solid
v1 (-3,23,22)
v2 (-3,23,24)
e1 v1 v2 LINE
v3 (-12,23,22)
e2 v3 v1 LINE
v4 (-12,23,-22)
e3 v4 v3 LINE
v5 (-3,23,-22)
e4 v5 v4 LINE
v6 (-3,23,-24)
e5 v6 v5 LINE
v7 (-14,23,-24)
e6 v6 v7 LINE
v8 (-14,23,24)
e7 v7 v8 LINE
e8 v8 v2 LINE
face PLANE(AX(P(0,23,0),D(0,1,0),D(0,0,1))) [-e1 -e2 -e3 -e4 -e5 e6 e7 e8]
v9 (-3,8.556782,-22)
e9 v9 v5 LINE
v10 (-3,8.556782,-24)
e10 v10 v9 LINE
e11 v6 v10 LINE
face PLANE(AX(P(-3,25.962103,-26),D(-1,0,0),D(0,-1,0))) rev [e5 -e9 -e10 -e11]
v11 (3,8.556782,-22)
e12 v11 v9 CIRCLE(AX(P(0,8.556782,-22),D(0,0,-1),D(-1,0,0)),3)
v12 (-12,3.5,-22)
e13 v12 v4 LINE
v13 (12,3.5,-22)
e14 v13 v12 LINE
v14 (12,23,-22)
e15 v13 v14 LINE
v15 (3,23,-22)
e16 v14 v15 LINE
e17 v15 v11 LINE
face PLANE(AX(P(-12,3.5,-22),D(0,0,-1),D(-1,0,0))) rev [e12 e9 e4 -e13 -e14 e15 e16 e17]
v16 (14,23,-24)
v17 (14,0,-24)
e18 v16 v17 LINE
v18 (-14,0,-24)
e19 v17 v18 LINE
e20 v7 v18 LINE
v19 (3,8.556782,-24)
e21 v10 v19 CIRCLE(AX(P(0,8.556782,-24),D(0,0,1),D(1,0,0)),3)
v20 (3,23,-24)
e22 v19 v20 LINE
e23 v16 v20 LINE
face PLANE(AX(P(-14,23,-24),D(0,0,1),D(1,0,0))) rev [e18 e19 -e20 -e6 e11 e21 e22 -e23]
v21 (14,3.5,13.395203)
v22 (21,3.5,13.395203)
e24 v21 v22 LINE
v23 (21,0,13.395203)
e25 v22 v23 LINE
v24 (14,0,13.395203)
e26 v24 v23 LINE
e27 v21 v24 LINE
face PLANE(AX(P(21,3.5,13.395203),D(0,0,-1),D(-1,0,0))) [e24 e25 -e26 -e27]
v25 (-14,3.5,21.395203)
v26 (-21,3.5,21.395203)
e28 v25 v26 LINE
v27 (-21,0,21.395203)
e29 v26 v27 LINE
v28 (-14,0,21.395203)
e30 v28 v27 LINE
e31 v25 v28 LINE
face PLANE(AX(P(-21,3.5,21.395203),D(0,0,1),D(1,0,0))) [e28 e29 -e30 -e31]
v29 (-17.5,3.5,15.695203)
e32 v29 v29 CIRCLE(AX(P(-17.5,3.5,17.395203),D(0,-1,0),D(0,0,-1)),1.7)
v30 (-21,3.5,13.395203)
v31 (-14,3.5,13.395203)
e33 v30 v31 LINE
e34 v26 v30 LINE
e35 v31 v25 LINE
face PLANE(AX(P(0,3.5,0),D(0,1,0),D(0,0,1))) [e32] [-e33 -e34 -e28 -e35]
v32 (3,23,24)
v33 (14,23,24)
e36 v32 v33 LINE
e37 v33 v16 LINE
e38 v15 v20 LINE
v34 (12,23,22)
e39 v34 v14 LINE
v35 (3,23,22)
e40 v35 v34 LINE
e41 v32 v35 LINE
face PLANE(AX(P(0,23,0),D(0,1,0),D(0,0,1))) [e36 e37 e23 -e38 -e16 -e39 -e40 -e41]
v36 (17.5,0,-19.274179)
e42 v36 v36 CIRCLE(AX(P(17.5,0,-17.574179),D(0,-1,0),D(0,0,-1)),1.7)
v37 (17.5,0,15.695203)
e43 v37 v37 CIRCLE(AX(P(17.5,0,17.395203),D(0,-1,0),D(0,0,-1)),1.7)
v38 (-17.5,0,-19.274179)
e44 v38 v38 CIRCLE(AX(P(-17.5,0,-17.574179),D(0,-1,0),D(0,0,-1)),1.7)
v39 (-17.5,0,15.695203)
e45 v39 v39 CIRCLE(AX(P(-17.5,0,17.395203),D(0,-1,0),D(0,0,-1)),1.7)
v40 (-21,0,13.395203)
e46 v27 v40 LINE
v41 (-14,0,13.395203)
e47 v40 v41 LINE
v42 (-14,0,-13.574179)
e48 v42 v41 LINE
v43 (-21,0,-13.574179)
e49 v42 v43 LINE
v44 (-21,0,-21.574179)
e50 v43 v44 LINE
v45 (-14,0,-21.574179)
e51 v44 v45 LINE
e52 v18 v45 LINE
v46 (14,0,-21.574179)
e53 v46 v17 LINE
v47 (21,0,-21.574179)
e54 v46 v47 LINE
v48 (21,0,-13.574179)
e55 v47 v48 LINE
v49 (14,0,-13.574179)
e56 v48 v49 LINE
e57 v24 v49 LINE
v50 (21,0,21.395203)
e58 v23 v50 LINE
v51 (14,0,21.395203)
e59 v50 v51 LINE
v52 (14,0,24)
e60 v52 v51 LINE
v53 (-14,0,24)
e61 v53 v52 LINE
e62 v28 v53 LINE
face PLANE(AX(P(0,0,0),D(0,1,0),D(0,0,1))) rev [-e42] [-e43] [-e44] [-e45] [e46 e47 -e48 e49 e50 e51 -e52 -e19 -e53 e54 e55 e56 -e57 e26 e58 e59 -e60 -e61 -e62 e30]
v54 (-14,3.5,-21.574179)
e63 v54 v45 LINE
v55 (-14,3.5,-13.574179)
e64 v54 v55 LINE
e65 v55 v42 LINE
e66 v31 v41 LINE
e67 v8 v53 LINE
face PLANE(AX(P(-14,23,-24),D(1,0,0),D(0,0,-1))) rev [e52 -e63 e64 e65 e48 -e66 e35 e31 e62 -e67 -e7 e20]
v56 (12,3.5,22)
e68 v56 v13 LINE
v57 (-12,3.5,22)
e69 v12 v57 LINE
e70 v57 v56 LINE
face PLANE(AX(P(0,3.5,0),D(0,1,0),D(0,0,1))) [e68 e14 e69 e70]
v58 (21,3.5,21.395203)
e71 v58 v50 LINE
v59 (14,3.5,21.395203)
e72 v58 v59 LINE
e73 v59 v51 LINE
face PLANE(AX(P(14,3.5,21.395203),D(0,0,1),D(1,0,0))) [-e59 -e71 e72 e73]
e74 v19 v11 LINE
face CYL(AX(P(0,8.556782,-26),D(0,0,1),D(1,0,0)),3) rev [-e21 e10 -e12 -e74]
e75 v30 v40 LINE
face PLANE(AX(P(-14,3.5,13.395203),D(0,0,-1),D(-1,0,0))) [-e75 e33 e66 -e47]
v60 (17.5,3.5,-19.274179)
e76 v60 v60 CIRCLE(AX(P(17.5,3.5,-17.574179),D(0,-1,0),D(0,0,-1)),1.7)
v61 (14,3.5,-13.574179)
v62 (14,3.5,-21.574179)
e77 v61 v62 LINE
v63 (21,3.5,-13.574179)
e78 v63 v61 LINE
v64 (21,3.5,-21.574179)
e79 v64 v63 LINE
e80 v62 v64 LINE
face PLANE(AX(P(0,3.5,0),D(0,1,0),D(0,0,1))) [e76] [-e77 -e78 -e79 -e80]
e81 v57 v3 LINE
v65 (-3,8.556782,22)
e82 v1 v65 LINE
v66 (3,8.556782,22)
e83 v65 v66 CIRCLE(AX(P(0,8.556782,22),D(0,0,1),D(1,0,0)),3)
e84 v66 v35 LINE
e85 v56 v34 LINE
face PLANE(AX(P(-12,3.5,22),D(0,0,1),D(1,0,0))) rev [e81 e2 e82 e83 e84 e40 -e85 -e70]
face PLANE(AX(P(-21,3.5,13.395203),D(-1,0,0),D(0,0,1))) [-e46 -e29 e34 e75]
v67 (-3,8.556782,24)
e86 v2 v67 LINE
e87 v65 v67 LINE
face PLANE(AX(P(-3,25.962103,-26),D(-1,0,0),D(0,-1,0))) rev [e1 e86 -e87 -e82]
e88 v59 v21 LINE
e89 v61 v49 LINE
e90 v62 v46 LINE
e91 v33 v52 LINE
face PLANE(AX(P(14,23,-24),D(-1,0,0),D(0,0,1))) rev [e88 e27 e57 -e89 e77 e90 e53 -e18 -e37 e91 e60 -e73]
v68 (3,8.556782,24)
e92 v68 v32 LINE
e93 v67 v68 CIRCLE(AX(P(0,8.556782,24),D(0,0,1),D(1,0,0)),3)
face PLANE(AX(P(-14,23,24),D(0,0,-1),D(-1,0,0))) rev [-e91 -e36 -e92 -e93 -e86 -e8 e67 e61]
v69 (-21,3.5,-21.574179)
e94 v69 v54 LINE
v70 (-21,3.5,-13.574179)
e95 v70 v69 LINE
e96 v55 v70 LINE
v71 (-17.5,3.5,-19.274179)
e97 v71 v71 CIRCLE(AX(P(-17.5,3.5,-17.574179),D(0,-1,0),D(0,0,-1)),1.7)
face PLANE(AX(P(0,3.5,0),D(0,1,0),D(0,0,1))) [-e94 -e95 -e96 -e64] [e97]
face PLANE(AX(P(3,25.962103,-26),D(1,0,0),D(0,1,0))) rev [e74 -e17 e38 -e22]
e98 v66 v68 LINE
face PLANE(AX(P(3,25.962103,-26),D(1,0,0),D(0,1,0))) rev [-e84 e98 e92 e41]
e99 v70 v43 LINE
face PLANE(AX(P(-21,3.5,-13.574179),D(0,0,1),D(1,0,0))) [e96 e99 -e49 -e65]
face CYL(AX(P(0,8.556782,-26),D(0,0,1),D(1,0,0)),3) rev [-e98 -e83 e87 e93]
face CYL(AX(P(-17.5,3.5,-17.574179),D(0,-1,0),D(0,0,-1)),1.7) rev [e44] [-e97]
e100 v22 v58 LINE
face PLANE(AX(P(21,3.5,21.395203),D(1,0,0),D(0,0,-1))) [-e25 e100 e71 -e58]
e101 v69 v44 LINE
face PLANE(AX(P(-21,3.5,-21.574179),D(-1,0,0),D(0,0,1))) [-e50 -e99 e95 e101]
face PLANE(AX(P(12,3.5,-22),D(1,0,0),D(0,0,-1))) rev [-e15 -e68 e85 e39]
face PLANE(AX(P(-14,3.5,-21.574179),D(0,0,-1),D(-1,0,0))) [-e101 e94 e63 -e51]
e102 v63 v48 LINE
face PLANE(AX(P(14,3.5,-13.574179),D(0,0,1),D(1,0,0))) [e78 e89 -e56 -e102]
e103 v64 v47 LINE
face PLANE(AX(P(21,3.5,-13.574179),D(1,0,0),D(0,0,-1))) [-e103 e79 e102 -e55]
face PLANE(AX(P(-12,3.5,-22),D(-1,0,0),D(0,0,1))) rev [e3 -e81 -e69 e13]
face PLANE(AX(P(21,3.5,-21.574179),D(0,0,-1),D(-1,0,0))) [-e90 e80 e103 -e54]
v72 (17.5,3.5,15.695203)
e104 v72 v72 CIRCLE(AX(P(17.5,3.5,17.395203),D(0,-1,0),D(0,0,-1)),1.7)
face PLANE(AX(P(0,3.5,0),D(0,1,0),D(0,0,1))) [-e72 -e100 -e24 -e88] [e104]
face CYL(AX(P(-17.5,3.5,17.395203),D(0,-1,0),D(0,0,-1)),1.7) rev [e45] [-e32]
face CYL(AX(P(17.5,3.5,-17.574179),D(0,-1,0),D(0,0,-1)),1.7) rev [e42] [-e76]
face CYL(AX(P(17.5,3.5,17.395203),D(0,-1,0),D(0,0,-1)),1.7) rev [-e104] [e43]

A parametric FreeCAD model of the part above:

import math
import FreeCAD as App
import Part
import Sketcher
from FreeCAD import Vector
Q = App.Units.Quantity


def add_polygon(sketch, points):
    """Adds a closed chain of lines whose ends are joined by coincident constraints."""
    first, n = sketch.GeometryCount, len(points)
    for a, b in zip(points, points[1:] + points[:1]):
        sketch.addGeometry(Part.LineSegment(App.Vector(*a, 0), App.Vector(*b, 0)), False)
    for i in range(n):
        sketch.addConstraint(Sketcher.Constraint("Coincident", first + i, 2, first + (i + 1) % n, 1))

doc = App.newDocument("Part")
body = doc.addObject("PartDesign::Body", "Body")

sketch1 = body.newObject("Sketcher::SketchObject", "Sketch")
sketch1.AttachmentSupport = (doc.getObject("XZ_Plane"), [""])
sketch1.MapMode = "FlatFace"
add_polygon(sketch1, [(-14, -24), (-14, 24), (14, 24), (14, -24)])
sketch1.addConstraint(Sketcher.Constraint("Vertical", 0))
sketch1.addConstraint(Sketcher.Constraint("Horizontal", 1))
sketch1.addConstraint(Sketcher.Constraint("Vertical", 2))
sketch1.addConstraint(Sketcher.Constraint("Horizontal", 3))
sketch1.addConstraint(Sketcher.Constraint("Symmetric", 0, 2, 2, 2, -1, 1))
sketch1.addConstraint(Sketcher.Constraint("DistanceX", 1, 1, 1, 2, Q("28 mm")))
sketch1.addConstraint(Sketcher.Constraint("DistanceY", 0, 1, 0, 2, Q("48 mm")))
pad1 = body.newObject("PartDesign::Pad", "Pad")
pad1.Profile = sketch1
pad1.Length = 23
pad1.Reversed = True

sketch2 = body.newObject("Sketcher::SketchObject", "Sketch001")
sketch2.AttachmentSupport = (doc.getObject("XZ_Plane"), [""])
sketch2.MapMode = "FlatFace"
sketch2.AttachmentOffset = App.Placement(Vector(0, 0, -23), App.Rotation())
add_polygon(sketch2, [(-12, -22), (-12, 22), (12, 22), (12, -22)])
sketch2.addConstraint(Sketcher.Constraint("Vertical", 0))
sketch2.addConstraint(Sketcher.Constraint("Horizontal", 1))
sketch2.addConstraint(Sketcher.Constraint("Vertical", 2))
sketch2.addConstraint(Sketcher.Constraint("Horizontal", 3))
sketch2.addConstraint(Sketcher.Constraint("Symmetric", 0, 2, 2, 2, -1, 1))
sketch2.addConstraint(Sketcher.Constraint("DistanceX", 1, 1, 1, 2, Q("24 mm")))
sketch2.addConstraint(Sketcher.Constraint("DistanceY", 0, 1, 0, 2, Q("44 mm")))
pocket1 = body.newObject("PartDesign::Pocket", "Pocket")
pocket1.Profile = sketch2
pocket1.Length = 19.5
pocket1.Reversed = True

sketch3 = body.newObject("Sketcher::SketchObject", "Sketch002")
sketch3.AttachmentSupport = (doc.getObject("XZ_Plane"), [""])
sketch3.MapMode = "FlatFace"
add_polygon(sketch3, [(14, 21.395203), (14, 13.395203), (21, 13.395203), (21, 21.395203)])
add_polygon(sketch3, [(14, -13.574179), (14, -21.574179), (21, -21.574179), (21, -13.574179)])
add_polygon(sketch3, [(-21, -13.574179), (-21, -21.574179), (-14, -21.574179), (-14, -13.574179)])
add_polygon(sketch3, [(-21, 21.395203), (-21, 13.395203), (-14, 13.395203), (-14, 21.395203)])
sketch3.addConstraint(Sketcher.Constraint("Vertical", 0))
sketch3.addConstraint(Sketcher.Constraint("Horizontal", 1))
sketch3.addConstraint(Sketcher.Constraint("Vertical", 2))
sketch3.addConstraint(Sketcher.Constraint("Horizontal", 3))
sketch3.addConstraint(Sketcher.Constraint("Vertical", 4))
sketch3.addConstraint(Sketcher.Constraint("Horizontal", 5))
sketch3.addConstraint(Sketcher.Constraint("Vertical", 6))
sketch3.addConstraint(Sketcher.Constraint("Horizontal", 7))
sketch3.addConstraint(Sketcher.Constraint("Vertical", 8))
sketch3.addConstraint(Sketcher.Constraint("Horizontal", 9))
sketch3.addConstraint(Sketcher.Constraint("Vertical", 10))
sketch3.addConstraint(Sketcher.Constraint("Horizontal", 11))
sketch3.addConstraint(Sketcher.Constraint("Vertical", 12))
sketch3.addConstraint(Sketcher.Constraint("Horizontal", 13))
sketch3.addConstraint(Sketcher.Constraint("Vertical", 14))
sketch3.addConstraint(Sketcher.Constraint("Horizontal", 15))
sketch3.addConstraint(Sketcher.Constraint("Symmetric", 5, 2, 8, 2, -2))
sketch3.addConstraint(Sketcher.Constraint("Symmetric", 7, 2, 10, 2, -2))
sketch3.addConstraint(Sketcher.Constraint("Symmetric", 1, 2, 12, 2, -2))
sketch3.addConstraint(Sketcher.Constraint("Symmetric", 3, 2, 14, 2, -2))
sketch3.addConstraint(Sketcher.Constraint("Vertical", 3, 2, 4, 2))
sketch3.addConstraint(Sketcher.Constraint("Vertical", 2, 2, 5, 2))
sketch3.addConstraint(Sketcher.Constraint("Equal", 2, 4))
sketch3.addConstraint(Sketcher.Constraint("DistanceX", 1, 1, 1, 2, Q("7 mm")))
sketch3.addConstraint(Sketcher.Constraint("DistanceY", 0, 2, 0, 1, Q("8 mm")))
sketch3.addConstraint(Sketcher.Constraint("DistanceX", -1, 1, 0, 2, Q("14 mm")))
sketch3.addConstraint(Sketcher.Constraint("DistanceY", 4, 2, -1, 1, Q("21.574179 mm")))
sketch3.addConstraint(Sketcher.Constraint("DistanceY", -1, 1, 0, 2, Q("13.395203 mm")))
pad2 = body.newObject("PartDesign::Pad", "Pad001")
pad2.Profile = sketch3
pad2.Length = 3.5
pad2.Reversed = True

sketch4 = body.newObject("Sketcher::SketchObject", "Sketch003")
sketch4.AttachmentSupport = (doc.getObject("XZ_Plane"), [""])
sketch4.MapMode = "FlatFace"
sketch4.addGeometry(Part.Circle(Vector(-17.5, 17.395203, 0), Vector(0, 0, 1), 1.7), False)
sketch4.addGeometry(Part.Circle(Vector(-17.5, -17.574179, 0), Vector(0, 0, 1), 1.7), False)
sketch4.addGeometry(Part.Circle(Vector(17.5, -17.574179, 0), Vector(0, 0, 1), 1.7), False)
sketch4.addGeometry(Part.Circle(Vector(17.5, 17.395203, 0), Vector(0, 0, 1), 1.7), False)
sketch4.addConstraint(Sketcher.Constraint("Equal", 0, 1))
sketch4.addConstraint(Sketcher.Constraint("Equal", 1, 2))
sketch4.addConstraint(Sketcher.Constraint("Equal", 2, 3))
sketch4.addConstraint(Sketcher.Constraint("Symmetric", 1, 3, 2, 3, -2))
sketch4.addConstraint(Sketcher.Constraint("Symmetric", 0, 3, 3, 3, -2))
sketch4.addConstraint(Sketcher.Constraint("Vertical", 0, 3, 1, 3))
sketch4.addConstraint(Sketcher.Constraint("Diameter", 0, Q("3.4 mm")))
sketch4.addConstraint(Sketcher.Constraint("DistanceX", 1, 3, 2, 3, Q("35 mm")))
sketch4.addConstraint(Sketcher.Constraint("DistanceY", 1, 3, -1, 1, Q("17.574179 mm")))
sketch4.addConstraint(Sketcher.Constraint("DistanceY", -1, 1, 0, 3, Q("17.395203 mm")))
pocket2 = body.newObject("PartDesign::Pocket", "Pocket001")
pocket2.Profile = sketch4
pocket2.Length = 3.5

sketch5 = body.newObject("Sketcher::SketchObject", "Sketch004")
sketch5.AttachmentSupport = (doc.getObject("XY_Plane"), [""])
sketch5.MapMode = "FlatFace"
sketch5.AttachmentOffset = App.Placement(Vector(0, 0, 24), App.Rotation())
sketch5.addGeometry(Part.LineSegment(Vector(3, 8.556782, 0), Vector(3, 25.962103, 0)), False)
sketch5.addGeometry(Part.ArcOfCircle(Part.Circle(Vector(0, 25.962103, 0), Vector(0, 0, 1), 3), math.radians(0), math.radians(180)), False)
sketch5.addGeometry(Part.LineSegment(Vector(-3, 25.962103, 0), Vector(-3, 8.556782, 0)), False)
sketch5.addGeometry(Part.ArcOfCircle(Part.Circle(Vector(0, 8.556782, 0), Vector(0, 0, 1), 3), math.radians(180), math.radians(360)), False)
sketch5.addConstraint(Sketcher.Constraint("Tangent", 0, 2, 1, 1))
sketch5.addConstraint(Sketcher.Constraint("Tangent", 1, 2, 2, 1))
sketch5.addConstraint(Sketcher.Constraint("Tangent", 2, 2, 3, 1))
sketch5.addConstraint(Sketcher.Constraint("Tangent", 3, 2, 0, 1))
sketch5.addConstraint(Sketcher.Constraint("Vertical", 0))
sketch5.addConstraint(Sketcher.Constraint("Vertical", 2))
sketch5.addConstraint(Sketcher.Constraint("PointOnObject", 1, 3, -2))
sketch5.addConstraint(Sketcher.Constraint("Radius", 1, Q("3 mm")))
sketch5.addConstraint(Sketcher.Constraint("DistanceY", 0, 1, 0, 2, Q("17.405321 mm")))
sketch5.addConstraint(Sketcher.Constraint("DistanceY", -1, 1, 1, 3, Q("25.962103 mm")))
pocket3 = body.newObject("PartDesign::Pocket", "Pocket002")
pocket3.Profile = sketch5
pocket3.Length = 50

doc.recompute()
